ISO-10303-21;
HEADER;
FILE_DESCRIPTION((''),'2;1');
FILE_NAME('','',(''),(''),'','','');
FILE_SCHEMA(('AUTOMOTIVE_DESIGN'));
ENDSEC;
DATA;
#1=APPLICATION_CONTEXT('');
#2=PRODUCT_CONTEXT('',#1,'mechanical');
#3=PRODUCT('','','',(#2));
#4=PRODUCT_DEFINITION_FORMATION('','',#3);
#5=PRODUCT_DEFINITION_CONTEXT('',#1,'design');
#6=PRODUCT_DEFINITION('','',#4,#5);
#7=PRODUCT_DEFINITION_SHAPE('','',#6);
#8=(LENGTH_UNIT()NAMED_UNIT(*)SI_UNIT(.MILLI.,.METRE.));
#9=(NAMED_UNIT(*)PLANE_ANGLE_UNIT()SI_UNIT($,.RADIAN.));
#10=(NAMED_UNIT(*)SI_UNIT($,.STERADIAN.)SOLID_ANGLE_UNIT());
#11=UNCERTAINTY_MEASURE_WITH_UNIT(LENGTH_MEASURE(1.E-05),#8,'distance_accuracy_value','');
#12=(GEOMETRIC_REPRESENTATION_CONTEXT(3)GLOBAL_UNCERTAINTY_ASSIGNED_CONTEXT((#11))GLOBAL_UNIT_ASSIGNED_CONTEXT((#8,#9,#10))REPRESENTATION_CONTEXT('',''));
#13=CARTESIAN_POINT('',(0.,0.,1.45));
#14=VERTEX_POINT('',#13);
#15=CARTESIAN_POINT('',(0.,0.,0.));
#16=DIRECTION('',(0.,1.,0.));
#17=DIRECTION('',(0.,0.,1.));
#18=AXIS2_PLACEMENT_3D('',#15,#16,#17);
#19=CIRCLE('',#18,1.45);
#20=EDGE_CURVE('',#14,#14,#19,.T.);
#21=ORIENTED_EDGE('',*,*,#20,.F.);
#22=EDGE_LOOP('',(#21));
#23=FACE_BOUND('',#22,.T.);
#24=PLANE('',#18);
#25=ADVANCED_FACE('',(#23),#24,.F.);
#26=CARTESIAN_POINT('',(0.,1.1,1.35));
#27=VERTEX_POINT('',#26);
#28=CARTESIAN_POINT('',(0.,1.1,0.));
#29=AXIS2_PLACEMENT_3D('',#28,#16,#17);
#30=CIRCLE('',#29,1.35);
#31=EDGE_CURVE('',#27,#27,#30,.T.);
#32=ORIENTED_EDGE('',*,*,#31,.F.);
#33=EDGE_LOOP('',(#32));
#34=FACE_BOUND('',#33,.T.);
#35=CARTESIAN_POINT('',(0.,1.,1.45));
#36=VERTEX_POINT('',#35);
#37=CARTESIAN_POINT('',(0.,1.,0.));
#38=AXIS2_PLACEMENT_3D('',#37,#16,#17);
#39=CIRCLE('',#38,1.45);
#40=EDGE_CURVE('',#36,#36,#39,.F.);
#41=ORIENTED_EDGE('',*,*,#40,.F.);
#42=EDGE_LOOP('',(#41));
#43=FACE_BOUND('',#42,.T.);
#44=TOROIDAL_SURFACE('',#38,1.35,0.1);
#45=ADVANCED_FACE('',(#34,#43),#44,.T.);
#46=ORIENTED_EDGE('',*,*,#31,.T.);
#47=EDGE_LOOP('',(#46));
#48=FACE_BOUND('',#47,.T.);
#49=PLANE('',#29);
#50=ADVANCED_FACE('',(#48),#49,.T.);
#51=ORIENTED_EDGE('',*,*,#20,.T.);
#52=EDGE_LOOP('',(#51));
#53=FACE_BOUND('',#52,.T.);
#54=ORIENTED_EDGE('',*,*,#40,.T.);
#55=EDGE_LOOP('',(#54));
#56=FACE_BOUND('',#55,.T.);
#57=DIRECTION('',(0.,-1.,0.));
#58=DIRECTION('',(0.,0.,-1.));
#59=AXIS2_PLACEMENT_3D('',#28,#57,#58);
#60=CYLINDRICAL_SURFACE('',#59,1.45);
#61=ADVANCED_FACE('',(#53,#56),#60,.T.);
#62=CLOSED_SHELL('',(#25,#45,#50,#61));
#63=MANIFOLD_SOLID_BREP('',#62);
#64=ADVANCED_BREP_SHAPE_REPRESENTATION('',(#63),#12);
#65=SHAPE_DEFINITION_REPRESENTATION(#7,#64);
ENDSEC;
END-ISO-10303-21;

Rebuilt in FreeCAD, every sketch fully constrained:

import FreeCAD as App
import Part
import Sketcher

V = App.Vector


def edges_at(feature, points):
    """Names of the edges that pass closest to the given points."""
    edges = feature.Shape.Edges
    near = lambda p: min(range(len(edges)), key=lambda i: edges[i].distToShape(Part.Vertex(*p))[0])
    return sorted({f"Edge{near(p) + 1}" for p in points})

doc = App.newDocument("Part")
body = doc.addObject("PartDesign::Body", "Body")

sketch1 = body.newObject("Sketcher::SketchObject", "Sketch")
sketch1.AttachmentSupport = (doc.getObject("XZ_Plane"), [""])
sketch1.MapMode = "FlatFace"
sketch1.addGeometry(Part.Circle(V(0, 0, 0), V(0, 0, 1), 1.45), False)
sketch1.addConstraint(Sketcher.Constraint("Coincident", 0, 3, -1, 1))
sketch1.addConstraint(Sketcher.Constraint("Diameter", 0, 2.9))
pad1 = body.newObject("PartDesign::Pad", "Pad")
pad1.Profile = sketch1
pad1.Length = 1.1
pad1.Reversed = True
doc.recompute()

fillet = body.newObject("PartDesign::Fillet", "Fillet")
fillet.Base = (pad1, edges_at(pad1, [(-1.45, 1.1, 0)]))
fillet.Radius = 0.1

doc.recompute()
